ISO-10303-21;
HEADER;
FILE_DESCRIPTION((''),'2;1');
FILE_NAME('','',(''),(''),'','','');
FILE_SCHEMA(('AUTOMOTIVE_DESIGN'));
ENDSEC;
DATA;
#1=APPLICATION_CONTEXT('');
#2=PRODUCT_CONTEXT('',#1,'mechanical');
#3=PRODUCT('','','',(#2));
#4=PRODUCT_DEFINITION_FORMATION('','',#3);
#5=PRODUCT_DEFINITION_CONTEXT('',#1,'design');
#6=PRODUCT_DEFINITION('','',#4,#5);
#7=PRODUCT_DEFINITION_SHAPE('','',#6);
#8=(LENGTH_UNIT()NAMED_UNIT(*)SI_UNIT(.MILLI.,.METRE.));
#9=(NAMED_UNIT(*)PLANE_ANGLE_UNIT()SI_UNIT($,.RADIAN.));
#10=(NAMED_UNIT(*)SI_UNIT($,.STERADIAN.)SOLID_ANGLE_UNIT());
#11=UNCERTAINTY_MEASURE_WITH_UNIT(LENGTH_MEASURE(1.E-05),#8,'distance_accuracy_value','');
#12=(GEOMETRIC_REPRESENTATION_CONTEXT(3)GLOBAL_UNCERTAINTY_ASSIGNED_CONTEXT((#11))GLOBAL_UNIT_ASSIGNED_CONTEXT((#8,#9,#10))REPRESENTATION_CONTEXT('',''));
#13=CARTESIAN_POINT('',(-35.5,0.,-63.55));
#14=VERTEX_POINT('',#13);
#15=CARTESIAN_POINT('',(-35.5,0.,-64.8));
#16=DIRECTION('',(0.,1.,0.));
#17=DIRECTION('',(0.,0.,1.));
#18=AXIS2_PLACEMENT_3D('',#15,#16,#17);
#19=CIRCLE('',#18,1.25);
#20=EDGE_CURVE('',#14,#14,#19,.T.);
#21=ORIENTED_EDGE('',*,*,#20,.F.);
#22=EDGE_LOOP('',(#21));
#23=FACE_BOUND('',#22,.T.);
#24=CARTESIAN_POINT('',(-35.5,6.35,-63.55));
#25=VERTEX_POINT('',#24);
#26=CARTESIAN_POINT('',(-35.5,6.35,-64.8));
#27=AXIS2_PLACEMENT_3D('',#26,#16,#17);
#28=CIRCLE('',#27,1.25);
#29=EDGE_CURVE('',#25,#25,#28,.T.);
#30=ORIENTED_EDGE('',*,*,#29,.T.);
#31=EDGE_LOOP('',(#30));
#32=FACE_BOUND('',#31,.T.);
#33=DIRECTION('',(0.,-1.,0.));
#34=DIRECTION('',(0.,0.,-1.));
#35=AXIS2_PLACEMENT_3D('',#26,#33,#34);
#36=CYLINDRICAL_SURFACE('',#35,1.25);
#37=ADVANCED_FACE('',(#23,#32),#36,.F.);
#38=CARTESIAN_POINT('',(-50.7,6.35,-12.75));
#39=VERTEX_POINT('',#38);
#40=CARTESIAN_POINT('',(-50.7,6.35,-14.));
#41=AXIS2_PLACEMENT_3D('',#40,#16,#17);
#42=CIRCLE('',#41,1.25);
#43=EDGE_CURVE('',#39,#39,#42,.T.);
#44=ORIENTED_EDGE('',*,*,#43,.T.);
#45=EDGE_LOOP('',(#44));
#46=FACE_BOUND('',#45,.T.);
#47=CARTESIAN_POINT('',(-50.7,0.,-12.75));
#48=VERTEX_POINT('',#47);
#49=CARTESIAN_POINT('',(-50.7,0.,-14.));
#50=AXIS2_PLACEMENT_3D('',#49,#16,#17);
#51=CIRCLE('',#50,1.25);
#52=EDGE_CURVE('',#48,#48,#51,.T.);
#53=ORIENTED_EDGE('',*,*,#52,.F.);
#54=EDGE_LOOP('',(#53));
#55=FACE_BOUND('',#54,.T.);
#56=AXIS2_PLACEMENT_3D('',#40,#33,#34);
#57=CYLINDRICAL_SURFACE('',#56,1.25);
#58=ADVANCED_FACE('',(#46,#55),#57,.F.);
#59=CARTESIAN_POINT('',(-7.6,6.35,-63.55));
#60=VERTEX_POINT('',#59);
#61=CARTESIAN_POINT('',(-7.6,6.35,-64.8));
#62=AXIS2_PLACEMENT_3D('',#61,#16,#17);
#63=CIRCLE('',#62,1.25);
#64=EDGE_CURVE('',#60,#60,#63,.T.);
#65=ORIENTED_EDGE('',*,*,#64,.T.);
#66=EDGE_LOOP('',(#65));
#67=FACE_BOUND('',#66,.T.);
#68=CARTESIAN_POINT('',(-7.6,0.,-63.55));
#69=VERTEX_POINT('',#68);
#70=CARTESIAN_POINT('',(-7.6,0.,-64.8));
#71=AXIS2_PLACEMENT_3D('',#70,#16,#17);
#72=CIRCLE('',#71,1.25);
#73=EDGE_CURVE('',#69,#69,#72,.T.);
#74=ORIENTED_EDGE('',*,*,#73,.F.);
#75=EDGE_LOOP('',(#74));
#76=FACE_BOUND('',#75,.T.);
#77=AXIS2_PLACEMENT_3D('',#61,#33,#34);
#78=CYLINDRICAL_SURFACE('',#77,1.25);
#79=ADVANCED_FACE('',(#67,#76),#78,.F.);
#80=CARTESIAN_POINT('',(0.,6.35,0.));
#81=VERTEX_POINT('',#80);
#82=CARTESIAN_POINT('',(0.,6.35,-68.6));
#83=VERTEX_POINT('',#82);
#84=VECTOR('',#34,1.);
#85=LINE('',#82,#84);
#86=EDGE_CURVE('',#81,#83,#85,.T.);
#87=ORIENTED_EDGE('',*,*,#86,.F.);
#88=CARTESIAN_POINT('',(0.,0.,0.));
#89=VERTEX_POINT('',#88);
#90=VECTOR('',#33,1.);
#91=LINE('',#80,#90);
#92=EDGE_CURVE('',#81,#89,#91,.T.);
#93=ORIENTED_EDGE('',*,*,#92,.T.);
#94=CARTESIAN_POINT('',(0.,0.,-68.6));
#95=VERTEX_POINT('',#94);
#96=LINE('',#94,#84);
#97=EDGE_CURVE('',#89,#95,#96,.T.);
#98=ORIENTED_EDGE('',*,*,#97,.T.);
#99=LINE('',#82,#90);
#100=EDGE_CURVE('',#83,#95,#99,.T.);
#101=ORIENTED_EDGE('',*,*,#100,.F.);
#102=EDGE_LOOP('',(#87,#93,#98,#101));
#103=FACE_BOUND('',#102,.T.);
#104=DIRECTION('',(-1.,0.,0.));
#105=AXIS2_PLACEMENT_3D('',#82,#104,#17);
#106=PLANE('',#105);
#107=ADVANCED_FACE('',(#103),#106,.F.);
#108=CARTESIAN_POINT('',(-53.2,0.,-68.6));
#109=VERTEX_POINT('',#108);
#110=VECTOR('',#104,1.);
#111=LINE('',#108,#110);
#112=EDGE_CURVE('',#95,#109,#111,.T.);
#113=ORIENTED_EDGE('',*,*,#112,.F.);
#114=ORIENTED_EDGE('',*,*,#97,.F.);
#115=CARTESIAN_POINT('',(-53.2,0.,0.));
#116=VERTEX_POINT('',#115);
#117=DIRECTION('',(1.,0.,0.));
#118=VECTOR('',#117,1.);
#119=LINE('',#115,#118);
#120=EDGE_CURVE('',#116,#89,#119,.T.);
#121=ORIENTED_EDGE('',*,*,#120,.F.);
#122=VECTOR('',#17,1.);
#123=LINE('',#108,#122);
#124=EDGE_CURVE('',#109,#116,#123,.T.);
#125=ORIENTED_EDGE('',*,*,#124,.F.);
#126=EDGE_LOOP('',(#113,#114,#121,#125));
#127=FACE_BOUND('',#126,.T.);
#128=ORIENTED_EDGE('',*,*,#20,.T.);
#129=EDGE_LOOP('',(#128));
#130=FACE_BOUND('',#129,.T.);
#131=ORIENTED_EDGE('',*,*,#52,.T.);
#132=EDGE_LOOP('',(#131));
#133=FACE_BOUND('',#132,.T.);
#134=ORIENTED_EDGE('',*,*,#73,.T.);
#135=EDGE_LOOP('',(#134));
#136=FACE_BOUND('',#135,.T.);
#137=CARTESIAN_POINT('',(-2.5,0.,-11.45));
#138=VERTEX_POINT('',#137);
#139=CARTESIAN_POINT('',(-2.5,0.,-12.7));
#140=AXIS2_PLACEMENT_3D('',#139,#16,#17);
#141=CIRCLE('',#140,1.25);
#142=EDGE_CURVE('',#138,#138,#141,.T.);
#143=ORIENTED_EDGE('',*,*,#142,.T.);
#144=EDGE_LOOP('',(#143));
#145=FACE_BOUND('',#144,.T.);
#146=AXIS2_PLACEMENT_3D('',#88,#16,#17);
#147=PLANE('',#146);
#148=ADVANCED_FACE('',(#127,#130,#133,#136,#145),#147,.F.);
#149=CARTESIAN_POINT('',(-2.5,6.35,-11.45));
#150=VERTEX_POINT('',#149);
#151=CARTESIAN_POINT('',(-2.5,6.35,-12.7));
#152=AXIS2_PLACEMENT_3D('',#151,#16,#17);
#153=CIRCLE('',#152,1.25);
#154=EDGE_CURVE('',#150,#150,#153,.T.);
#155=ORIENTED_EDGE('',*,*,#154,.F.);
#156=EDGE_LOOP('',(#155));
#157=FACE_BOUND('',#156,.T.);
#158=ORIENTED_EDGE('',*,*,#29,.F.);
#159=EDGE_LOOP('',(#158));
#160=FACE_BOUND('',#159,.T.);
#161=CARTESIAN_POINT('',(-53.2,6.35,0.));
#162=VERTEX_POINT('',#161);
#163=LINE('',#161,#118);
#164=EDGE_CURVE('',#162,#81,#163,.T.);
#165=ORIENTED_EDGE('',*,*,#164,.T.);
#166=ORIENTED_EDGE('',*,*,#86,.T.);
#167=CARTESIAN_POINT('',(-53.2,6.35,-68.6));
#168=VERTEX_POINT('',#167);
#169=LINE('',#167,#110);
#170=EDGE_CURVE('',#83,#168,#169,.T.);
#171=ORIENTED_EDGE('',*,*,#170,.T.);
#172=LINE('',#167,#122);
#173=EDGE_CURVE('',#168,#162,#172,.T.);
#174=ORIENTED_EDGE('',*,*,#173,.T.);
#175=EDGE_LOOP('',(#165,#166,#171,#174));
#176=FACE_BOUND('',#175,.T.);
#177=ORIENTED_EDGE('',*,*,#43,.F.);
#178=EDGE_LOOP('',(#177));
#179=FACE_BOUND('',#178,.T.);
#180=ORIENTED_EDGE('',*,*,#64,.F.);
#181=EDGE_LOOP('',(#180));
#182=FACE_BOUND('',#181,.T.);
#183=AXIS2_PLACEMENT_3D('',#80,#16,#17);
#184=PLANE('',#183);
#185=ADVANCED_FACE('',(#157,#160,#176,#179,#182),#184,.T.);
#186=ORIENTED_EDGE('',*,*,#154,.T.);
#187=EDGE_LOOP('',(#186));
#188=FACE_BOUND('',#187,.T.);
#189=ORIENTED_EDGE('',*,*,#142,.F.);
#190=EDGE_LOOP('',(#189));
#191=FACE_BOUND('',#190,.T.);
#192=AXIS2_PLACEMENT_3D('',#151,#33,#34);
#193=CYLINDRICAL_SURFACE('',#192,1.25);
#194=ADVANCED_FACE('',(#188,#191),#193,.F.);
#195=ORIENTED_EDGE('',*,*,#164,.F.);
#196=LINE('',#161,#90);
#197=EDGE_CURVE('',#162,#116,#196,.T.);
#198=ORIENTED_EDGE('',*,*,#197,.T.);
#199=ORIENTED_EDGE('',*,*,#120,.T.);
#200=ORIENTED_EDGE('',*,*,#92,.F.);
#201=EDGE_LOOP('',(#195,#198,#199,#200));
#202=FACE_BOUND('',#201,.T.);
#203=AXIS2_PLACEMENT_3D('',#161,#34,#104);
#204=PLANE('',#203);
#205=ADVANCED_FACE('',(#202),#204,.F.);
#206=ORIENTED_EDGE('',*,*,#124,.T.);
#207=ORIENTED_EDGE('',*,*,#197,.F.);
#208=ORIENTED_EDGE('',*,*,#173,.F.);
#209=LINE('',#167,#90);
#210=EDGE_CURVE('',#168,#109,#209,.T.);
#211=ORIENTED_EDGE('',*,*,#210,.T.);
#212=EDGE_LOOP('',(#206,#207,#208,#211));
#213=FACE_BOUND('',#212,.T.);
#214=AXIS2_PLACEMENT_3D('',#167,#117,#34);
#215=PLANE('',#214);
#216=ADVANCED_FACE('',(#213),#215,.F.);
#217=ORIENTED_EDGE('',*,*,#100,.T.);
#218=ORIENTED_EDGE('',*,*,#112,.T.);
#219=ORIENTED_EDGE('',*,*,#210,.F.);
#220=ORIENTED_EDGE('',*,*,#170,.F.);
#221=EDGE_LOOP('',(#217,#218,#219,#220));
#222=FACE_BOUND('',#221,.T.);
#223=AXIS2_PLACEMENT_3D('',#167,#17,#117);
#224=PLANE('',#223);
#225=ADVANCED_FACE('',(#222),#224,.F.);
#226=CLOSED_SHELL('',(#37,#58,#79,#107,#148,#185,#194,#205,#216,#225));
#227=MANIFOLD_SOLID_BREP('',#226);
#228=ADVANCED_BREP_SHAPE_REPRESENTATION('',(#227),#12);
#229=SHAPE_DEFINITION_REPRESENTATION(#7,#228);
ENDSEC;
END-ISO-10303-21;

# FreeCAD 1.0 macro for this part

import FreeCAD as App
import Part
import Sketcher

doc = App.newDocument("Part")
params = doc.addObject("Spreadsheet::Sheet", "Params")
for row, (alias, value) in enumerate([
    ("sketch1_diameter", "2.5 mm"),
    ("sketch1_width", "53.2 mm"),
    ("sketch1_height", "68.6 mm"),
    ("pad1_length", "6.35 mm"),
], start=1):
    params.set(f"A{row}", alias)
    params.set(f"B{row}", "=" + value)
    params.setAlias(f"B{row}", alias)

body = doc.addObject("PartDesign::Body", "Body")

# Sketch on XZ plane
sketch1 = body.newObject("Sketcher::SketchObject", "Sketch")
sketch1.AttachmentSupport = (doc.getObject("XZ_Plane"), [""])
sketch1.MapMode = "FlatFace"
sketch1.addGeometry([
    Part.LineSegment(App.Vector(-53.2, -68.6, 0), App.Vector(-53.2, 0, 0)),  # 0
    Part.LineSegment(App.Vector(-53.2, 0, 0), App.Vector(0, 0, 0)),  # 1
    Part.LineSegment(App.Vector(0, 0, 0), App.Vector(0, -68.6, 0)),  # 2
    Part.LineSegment(App.Vector(0, -68.6, 0), App.Vector(-53.2, -68.6, 0)),  # 3
    Part.Circle(App.Vector(-50.7, -14, 0), App.Vector(0, 0, 1), 1.25),  # 4
    Part.Circle(App.Vector(-2.5, -12.7, 0), App.Vector(0, 0, 1), 1.25),  # 5
    Part.Circle(App.Vector(-35.5, -64.8, 0), App.Vector(0, 0, 1), 1.25),  # 6
    Part.Circle(App.Vector(-7.6, -64.8, 0), App.Vector(0, 0, 1), 1.25),  # 7
], False)
sketch1.addConstraint([
    Sketcher.Constraint("Coincident", 0, 2, 1, 1),
    Sketcher.Constraint("Coincident", 1, 2, 2, 1),
    Sketcher.Constraint("Coincident", 2, 2, 3, 1),
    Sketcher.Constraint("Coincident", 3, 2, 0, 1),
    Sketcher.Constraint("Vertical", 0),
    Sketcher.Constraint("Horizontal", 1),
    Sketcher.Constraint("Vertical", 2),
    Sketcher.Constraint("Horizontal", 3),
    Sketcher.Constraint("Coincident", 1, 2, -1, 1),
    Sketcher.Constraint("Equal", 4, 5),
    Sketcher.Constraint("Equal", 5, 6),
    Sketcher.Constraint("Equal", 6, 7),
    Sketcher.Constraint("Horizontal", 6, 3, 7, 3),
    Sketcher.Constraint("Diameter", 4, 2.5),
    Sketcher.Constraint("DistanceX", 1, 1, 1, 2, 53.2),
    Sketcher.Constraint("DistanceY", 0, 1, 0, 2, 68.6),
    Sketcher.Constraint("DistanceY", 4, 3, -1, 1, 14.0),
    Sketcher.Constraint("DistanceX", 6, 3, 5, 3, 33.0),
    Sketcher.Constraint("DistanceX", 4, 3, -1, 1, 50.7),
    Sketcher.Constraint("DistanceX", 5, 3, -1, 1, 2.5),
    Sketcher.Constraint("DistanceY", 5, 3, -1, 1, 12.7),
    Sketcher.Constraint("DistanceY", 6, 3, -1, 1, 64.8),
    Sketcher.Constraint("DistanceX", 7, 3, -1, 1, 7.6),
])
sketch1.setExpression("Constraints[13]", "Params.sketch1_diameter")
sketch1.setExpression("Constraints[14]", "Params.sketch1_width")
sketch1.setExpression("Constraints[15]", "Params.sketch1_height")
pad1 = body.newObject("PartDesign::Pad", "Pad")
pad1.Profile = sketch1
pad1.setExpression("Length", "Params.pad1_length")
pad1.Reversed = True

doc.recompute()
